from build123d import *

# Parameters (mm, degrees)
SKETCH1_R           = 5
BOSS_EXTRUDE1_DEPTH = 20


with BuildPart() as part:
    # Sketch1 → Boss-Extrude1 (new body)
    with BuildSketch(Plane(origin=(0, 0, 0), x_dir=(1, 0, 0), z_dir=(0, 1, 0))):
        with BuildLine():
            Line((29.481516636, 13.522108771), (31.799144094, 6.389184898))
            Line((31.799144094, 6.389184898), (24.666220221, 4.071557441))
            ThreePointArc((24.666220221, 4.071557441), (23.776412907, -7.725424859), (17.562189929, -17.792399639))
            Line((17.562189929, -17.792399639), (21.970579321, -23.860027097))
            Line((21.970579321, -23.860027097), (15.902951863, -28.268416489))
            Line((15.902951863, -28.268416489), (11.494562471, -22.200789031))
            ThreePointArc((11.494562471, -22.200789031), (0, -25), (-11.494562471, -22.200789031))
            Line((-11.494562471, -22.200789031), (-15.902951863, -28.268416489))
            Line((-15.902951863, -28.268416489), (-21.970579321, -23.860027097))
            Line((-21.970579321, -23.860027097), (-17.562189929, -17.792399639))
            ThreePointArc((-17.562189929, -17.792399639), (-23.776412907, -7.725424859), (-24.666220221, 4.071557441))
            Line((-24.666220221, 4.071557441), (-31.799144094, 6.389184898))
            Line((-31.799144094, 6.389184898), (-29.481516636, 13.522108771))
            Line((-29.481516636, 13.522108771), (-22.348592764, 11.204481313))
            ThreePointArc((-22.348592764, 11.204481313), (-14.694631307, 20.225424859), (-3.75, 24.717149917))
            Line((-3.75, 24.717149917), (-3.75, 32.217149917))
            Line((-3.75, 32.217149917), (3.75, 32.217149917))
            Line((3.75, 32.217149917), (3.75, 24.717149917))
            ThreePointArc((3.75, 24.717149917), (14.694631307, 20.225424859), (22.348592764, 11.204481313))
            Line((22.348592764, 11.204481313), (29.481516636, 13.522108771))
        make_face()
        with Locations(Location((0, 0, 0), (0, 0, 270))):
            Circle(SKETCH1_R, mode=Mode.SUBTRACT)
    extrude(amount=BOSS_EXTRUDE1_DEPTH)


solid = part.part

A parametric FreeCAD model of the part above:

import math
import FreeCAD as App
import Part
import Sketcher

V = App.Vector
Q = App.Units.Quantity

doc = App.newDocument("Part")
params = doc.addObject("Spreadsheet::Sheet", "Params")
for row, (alias, value) in enumerate([
    ("sketch1_diameter", "10 mm"),
    ("sketch1_radius", "25 mm"),
    ("sketch1_width", "7.5 mm"),
    ("sketch1_length", "7.5 mm"),
    ("pad1_length", "20 mm"),
], start=1):
    params.set(f"A{row}", alias)
    params.set(f"B{row}", "=" + value)
    params.setAlias(f"B{row}", alias)

body = doc.addObject("PartDesign::Body", "Body")

sketch1 = doc.addObject("Sketcher::SketchObject", "Sketch")
body.addObject(sketch1)
sketch1.AttachmentSupport = (doc.XZ_Plane, [""])
sketch1.MapMode = "FlatFace"
sketch1.addGeometry([
    Part.LineSegment(V(32, -6, 0), V(29, -14, 0)),
    Part.LineSegment(V(29, -14, 0), V(22, -11, 0)),
    Part.ArcOfCircle(Part.Circle(V(0, 0, 0), V(0, 0, 1), 25), math.radians(-81), math.radians(-27)),
    Part.LineSegment(V(4, -25, 0), V(4, -32, 0)),
    Part.LineSegment(V(4, -32, 0), V(-4, -32, 0)),
    Part.LineSegment(V(-4, -32, 0), V(-4, -25, 0)),
    Part.ArcOfCircle(Part.Circle(V(0, 0, 0), V(0, 0, 1), 25), math.radians(-153), math.radians(-99)),
    Part.LineSegment(V(-22, -11, 0), V(-29, -14, 0)),
    Part.LineSegment(V(-29, -14, 0), V(-32, -6, 0)),
    Part.LineSegment(V(-32, -6, 0), V(-25, -4, 0)),
    Part.ArcOfCircle(Part.Circle(V(0, 0, 0), V(0, 0, 1), 25), math.radians(135), math.radians(189)),
    Part.LineSegment(V(-18, 18, 0), V(-22, 24, 0)),
    Part.LineSegment(V(-22, 24, 0), V(-16, 28, 0)),
    Part.LineSegment(V(-16, 28, 0), V(-11, 22, 0)),
    Part.ArcOfCircle(Part.Circle(V(0, 0, 0), V(0, 0, 1), 25), math.radians(63), math.radians(117)),
    Part.LineSegment(V(11, 22, 0), V(16, 28, 0)),
    Part.LineSegment(V(16, 28, 0), V(22, 24, 0)),
    Part.LineSegment(V(22, 24, 0), V(18, 18, 0)),
    Part.ArcOfCircle(Part.Circle(V(0, 0, 0), V(0, 0, 1), 25), math.radians(-9), math.radians(45)),
    Part.LineSegment(V(25, -4, 0), V(32, -6, 0)),
    Part.Circle(V(0, 0, 0), V(0, 0, 1), 5),
], False)
sketch1.addConstraint([
    Sketcher.Constraint("Coincident", 0, 2, 1, 1),
    Sketcher.Constraint("Coincident", 1, 2, 2, 2),
    Sketcher.Constraint("Coincident", 2, 1, 3, 1),
    Sketcher.Constraint("Coincident", 3, 2, 4, 1),
    Sketcher.Constraint("Coincident", 4, 2, 5, 1),
    Sketcher.Constraint("Coincident", 5, 2, 6, 2),
    Sketcher.Constraint("Coincident", 6, 1, 7, 1),
    Sketcher.Constraint("Coincident", 7, 2, 8, 1),
    Sketcher.Constraint("Coincident", 8, 2, 9, 1),
    Sketcher.Constraint("Coincident", 9, 2, 10, 2),
    Sketcher.Constraint("Coincident", 10, 1, 11, 1),
    Sketcher.Constraint("Coincident", 11, 2, 12, 1),
    Sketcher.Constraint("Coincident", 12, 2, 13, 1),
    Sketcher.Constraint("Coincident", 13, 2, 14, 2),
    Sketcher.Constraint("Coincident", 14, 1, 15, 1),
    Sketcher.Constraint("Coincident", 15, 2, 16, 1),
    Sketcher.Constraint("Coincident", 16, 2, 17, 1),
    Sketcher.Constraint("Coincident", 17, 2, 18, 2),
    Sketcher.Constraint("Coincident", 18, 1, 19, 1),
    Sketcher.Constraint("Coincident", 19, 2, 0, 1),
    Sketcher.Constraint("Vertical", 3),
    Sketcher.Constraint("Horizontal", 4),
    Sketcher.Constraint("Vertical", 5),
    Sketcher.Constraint("Coincident", 2, 3, -1, 1),
    Sketcher.Constraint("Coincident", 6, 3, -1, 1),
    Sketcher.Constraint("Coincident", 10, 3, -1, 1),
    Sketcher.Constraint("Coincident", 14, 3, -1, 1),
    Sketcher.Constraint("Coincident", 18, 3, -1, 1),
    Sketcher.Constraint("Coincident", 20, 3, -1, 1),
    Sketcher.Constraint("Equal", 2, 6),
    Sketcher.Constraint("Equal", 6, 10),
    Sketcher.Constraint("Equal", 10, 14),
    Sketcher.Constraint("Equal", 14, 18),
    Sketcher.Constraint("Symmetric", 0, 2, 7, 2, -2),
    Sketcher.Constraint("Symmetric", 12, 2, 15, 2, -2),
    Sketcher.Constraint("Symmetric", 11, 2, 16, 2, -2),
    Sketcher.Constraint("Symmetric", 8, 2, 19, 2, -2),
    Sketcher.Constraint("Perpendicular", 0, 1),
    Sketcher.Constraint("Perpendicular", 7, 8),
    Sketcher.Constraint("Perpendicular", 8, 9),
    Sketcher.Constraint("Perpendicular", 11, 12),
    Sketcher.Constraint("Perpendicular", 12, 13),
    Sketcher.Constraint("Perpendicular", 15, 16),
    Sketcher.Constraint("Perpendicular", 16, 17),
    Sketcher.Constraint("Parallel", 1, 19),
    Sketcher.Constraint("Horizontal", 2, 1, 5, 2),
    Sketcher.Constraint("Equal", 4, 3),
    Sketcher.Constraint("Equal", 0, 1),
    Sketcher.Constraint("Equal", 8, 9),
    Sketcher.Constraint("Equal", 9, 11),
    Sketcher.Constraint("Equal", 11, 12),
    Sketcher.Constraint("Equal", 12, 13),
    Sketcher.Constraint("Diameter", 20, Q("10 mm")),
    Sketcher.Constraint("Radius", 2, Q("25 mm")),
    Sketcher.Constraint("Angle", 0, Q("-108 deg")),
    Sketcher.Constraint("Angle", 11, Q("126 deg")),
    Sketcher.Constraint("DistanceX", 4, 2, 4, 1, Q("7.5 mm")),
    Sketcher.Constraint("Distance", 0, Q("7.5 mm")),
])
sketch1.setExpression("Constraints[52]", "Params.sketch1_diameter")
sketch1.setExpression("Constraints[53]", "Params.sketch1_radius")
sketch1.setExpression("Constraints[56]", "Params.sketch1_width")
sketch1.setExpression("Constraints[57]", "Params.sketch1_length")
pad1 = doc.addObject("PartDesign::Pad", "Pad")
body.addObject(pad1)
pad1.Profile = sketch1
pad1.setExpression("Length", "Params.pad1_length")
pad1.Reversed = True

doc.recompute()
